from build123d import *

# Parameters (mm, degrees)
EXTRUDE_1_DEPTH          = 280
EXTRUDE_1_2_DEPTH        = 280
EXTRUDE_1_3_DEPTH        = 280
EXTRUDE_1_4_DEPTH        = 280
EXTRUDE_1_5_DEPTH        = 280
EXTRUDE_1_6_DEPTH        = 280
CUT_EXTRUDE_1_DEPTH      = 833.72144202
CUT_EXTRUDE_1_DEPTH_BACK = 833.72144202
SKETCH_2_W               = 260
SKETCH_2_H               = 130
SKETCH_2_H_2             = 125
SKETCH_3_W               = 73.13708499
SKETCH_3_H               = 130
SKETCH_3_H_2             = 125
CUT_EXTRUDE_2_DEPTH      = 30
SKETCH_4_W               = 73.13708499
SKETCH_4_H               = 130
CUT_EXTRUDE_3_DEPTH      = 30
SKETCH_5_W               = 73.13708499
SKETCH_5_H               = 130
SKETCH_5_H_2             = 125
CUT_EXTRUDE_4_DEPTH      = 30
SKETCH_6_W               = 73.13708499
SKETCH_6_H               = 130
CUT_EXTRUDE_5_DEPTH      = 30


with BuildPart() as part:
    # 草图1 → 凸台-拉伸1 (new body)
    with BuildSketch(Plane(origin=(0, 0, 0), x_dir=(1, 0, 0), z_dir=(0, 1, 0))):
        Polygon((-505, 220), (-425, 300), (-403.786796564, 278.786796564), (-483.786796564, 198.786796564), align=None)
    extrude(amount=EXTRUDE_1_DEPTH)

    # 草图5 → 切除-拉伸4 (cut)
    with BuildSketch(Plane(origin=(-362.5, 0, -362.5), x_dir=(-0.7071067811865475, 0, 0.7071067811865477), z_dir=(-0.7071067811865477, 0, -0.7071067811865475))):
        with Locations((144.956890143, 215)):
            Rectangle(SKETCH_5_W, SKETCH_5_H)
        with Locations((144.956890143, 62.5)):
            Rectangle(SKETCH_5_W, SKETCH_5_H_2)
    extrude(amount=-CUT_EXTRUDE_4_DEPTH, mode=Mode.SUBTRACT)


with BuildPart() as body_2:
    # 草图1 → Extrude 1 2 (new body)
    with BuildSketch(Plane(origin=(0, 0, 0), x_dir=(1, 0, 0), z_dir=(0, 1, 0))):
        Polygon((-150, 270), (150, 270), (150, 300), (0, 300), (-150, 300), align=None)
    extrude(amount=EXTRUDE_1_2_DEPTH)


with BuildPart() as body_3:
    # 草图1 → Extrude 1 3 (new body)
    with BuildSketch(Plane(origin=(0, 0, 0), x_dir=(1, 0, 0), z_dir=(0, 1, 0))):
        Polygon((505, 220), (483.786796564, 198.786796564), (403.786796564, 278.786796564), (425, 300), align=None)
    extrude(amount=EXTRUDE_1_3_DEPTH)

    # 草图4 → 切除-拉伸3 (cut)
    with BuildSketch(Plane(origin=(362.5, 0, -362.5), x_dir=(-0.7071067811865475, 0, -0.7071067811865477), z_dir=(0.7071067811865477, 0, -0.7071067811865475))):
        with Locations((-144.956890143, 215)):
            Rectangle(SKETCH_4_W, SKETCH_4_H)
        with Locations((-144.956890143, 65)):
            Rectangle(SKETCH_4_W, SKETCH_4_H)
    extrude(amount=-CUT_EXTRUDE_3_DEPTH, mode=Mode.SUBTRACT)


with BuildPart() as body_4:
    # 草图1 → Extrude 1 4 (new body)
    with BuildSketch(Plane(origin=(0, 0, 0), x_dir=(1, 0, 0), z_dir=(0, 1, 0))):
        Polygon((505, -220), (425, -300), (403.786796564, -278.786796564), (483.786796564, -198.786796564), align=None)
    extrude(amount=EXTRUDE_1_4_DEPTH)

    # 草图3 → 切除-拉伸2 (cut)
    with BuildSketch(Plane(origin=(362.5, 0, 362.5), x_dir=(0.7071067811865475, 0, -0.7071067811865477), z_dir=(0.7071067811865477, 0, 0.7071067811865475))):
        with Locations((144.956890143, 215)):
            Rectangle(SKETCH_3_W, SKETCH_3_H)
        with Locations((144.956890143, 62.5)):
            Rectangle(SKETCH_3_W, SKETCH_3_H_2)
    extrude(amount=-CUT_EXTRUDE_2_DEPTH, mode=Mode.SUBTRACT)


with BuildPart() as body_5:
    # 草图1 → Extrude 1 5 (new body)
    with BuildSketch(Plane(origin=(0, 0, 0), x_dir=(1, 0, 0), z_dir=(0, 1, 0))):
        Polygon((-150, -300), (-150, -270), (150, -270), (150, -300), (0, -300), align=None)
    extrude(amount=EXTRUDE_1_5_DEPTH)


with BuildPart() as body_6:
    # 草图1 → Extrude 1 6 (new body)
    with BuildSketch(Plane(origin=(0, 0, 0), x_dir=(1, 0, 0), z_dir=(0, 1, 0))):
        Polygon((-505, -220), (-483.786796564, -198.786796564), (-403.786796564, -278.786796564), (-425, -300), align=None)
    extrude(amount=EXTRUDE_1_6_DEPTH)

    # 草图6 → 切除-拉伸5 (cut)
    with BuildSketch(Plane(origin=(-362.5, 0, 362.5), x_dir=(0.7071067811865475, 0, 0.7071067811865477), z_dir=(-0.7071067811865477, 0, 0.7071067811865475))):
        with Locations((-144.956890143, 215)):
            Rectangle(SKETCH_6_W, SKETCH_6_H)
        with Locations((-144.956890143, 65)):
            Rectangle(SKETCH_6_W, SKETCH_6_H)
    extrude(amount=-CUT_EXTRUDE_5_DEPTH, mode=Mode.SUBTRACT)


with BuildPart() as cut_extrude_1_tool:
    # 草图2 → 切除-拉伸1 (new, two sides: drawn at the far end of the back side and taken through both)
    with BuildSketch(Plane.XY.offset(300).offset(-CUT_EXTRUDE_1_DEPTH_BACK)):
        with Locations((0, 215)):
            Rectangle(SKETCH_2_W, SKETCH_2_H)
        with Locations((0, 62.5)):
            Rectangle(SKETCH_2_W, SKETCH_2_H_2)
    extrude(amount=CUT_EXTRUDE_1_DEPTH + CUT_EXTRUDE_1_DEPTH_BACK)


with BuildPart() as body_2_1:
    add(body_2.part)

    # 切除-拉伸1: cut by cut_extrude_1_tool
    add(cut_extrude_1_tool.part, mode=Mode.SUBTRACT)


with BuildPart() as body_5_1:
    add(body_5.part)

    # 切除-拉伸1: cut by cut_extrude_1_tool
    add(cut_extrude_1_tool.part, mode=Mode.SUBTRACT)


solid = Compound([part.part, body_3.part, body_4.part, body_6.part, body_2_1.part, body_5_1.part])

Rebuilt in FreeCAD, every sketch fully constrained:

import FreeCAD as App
import Part
import Sketcher

V = App.Vector
Q = App.Units.Quantity


def add_polygon(sketch, points):
    """Adds a closed chain of lines whose ends are joined by coincident constraints."""
    first, n = sketch.GeometryCount, len(points)
    for a, b in zip(points, points[1:] + points[:1]):
        sketch.addGeometry(Part.LineSegment(App.Vector(*a, 0), App.Vector(*b, 0)), False)
    for i in range(n):
        sketch.addConstraint(Sketcher.Constraint("Coincident", first + i, 2, first + (i + 1) % n, 1))

doc = App.newDocument("Part")
body = doc.addObject("PartDesign::Body", "Body")

# Sketch on XZ plane
sketch1 = body.newObject("Sketcher::SketchObject", "Sketch")
sketch1.AttachmentSupport = (doc.getObject("XZ_Plane"), [""])
sketch1.MapMode = "FlatFace"
add_polygon(sketch1, [(-425, -300), (-505, -220), (-484, -199), (-404, -279)])  # lines 0-3
sketch1.addConstraint(Sketcher.Constraint("Perpendicular", 0, 1))
sketch1.addConstraint(Sketcher.Constraint("Perpendicular", 1, 2))
sketch1.addConstraint(Sketcher.Constraint("Perpendicular", 2, 3))
sketch1.addConstraint(Sketcher.Constraint("Angle", 0, Q("135 deg")))
sketch1.addConstraint(Sketcher.Constraint("Distance", 1, Q("30 mm")))
sketch1.addConstraint(Sketcher.Constraint("DistanceX", 0, 2, -1, 1, Q("505 mm")))
sketch1.addConstraint(Sketcher.Constraint("DistanceY", 0, 2, -1, 1, Q("220 mm")))
sketch1.addConstraint(Sketcher.Constraint("DistanceX", 3, 2, -1, 1, Q("425 mm")))
pad1 = body.newObject("PartDesign::Pad", "Pad")
pad1.Profile = sketch1
pad1.Length = 280
pad1.Reversed = True

# Sketch on an angled plane
sketch2 = body.newObject("Sketcher::SketchObject", "Sketch001")
sketch2.Placement = App.Placement(V(-362.5, 0, -362.5), App.Rotation(V(-0.707106781, 0, 0.707106781), V(0, 0.999999999, 0), V(-0.707106781, 0, -0.707106781), "ZXY"))
add_polygon(sketch2, [(108, 280), (108, 150), (182, 150), (182, 280)])  # lines 0-3
add_polygon(sketch2, [(108, 125), (108, 0), (182, 0), (182, 125)])  # lines 4-7
sketch2.addConstraint(Sketcher.Constraint("Vertical", 0))
sketch2.addConstraint(Sketcher.Constraint("Horizontal", 1))
sketch2.addConstraint(Sketcher.Constraint("Vertical", 2))
sketch2.addConstraint(Sketcher.Constraint("Horizontal", 3))
sketch2.addConstraint(Sketcher.Constraint("Vertical", 4))
sketch2.addConstraint(Sketcher.Constraint("Horizontal", 5))
sketch2.addConstraint(Sketcher.Constraint("Vertical", 6))
sketch2.addConstraint(Sketcher.Constraint("Horizontal", 7))
sketch2.addConstraint(Sketcher.Constraint("PointOnObject", 4, 2, -1))
sketch2.addConstraint(Sketcher.Constraint("Vertical", 3, 2, 4, 2))
sketch2.addConstraint(Sketcher.Constraint("Vertical", 2, 2, 5, 2))
sketch2.addConstraint(Sketcher.Constraint("DistanceY", 0, 2, 0, 1, Q("130 mm")))
sketch2.addConstraint(Sketcher.Constraint("DistanceY", 4, 2, 4, 1, Q("125 mm")))
sketch2.addConstraint(Sketcher.Constraint("DistanceY", -1, 1, 0, 2, Q("150 mm")))
sketch2.addConstraint(Sketcher.Constraint("DistanceX", 1, 1, 1, 2, Q("73.137085 mm")))
sketch2.addConstraint(Sketcher.Constraint("DistanceX", -1, 1, 0, 2, Q("108.388348 mm")))
pocket1 = body.newObject("PartDesign::Pocket", "Pocket")
pocket1.Profile = sketch2
pocket1.Length = 30
body2 = doc.addObject("PartDesign::Body", "Body001")

# Sketch on XZ plane
sketch3 = body2.newObject("Sketcher::SketchObject", "Sketch002")
sketch3.AttachmentSupport = (doc.getObject("XZ_Plane001"), [""])
sketch3.MapMode = "FlatFace"
add_polygon(sketch3, [(-150, -270), (150, -270), (150, -300), (-150, -300)])  # lines 0-3
sketch3.addConstraint(Sketcher.Constraint("Horizontal", 0))
sketch3.addConstraint(Sketcher.Constraint("Vertical", 1))
sketch3.addConstraint(Sketcher.Constraint("Horizontal", 2))
sketch3.addConstraint(Sketcher.Constraint("Vertical", 3))
sketch3.addConstraint(Sketcher.Constraint("DistanceX", 0, 1, 0, 2, Q("300 mm")))
sketch3.addConstraint(Sketcher.Constraint("DistanceY", 1, 2, 1, 1, Q("30 mm")))
sketch3.addConstraint(Sketcher.Constraint("DistanceX", -1, 1, 0, 2, Q("150 mm")))
sketch3.addConstraint(Sketcher.Constraint("DistanceY", 0, 2, -1, 1, Q("270 mm")))
pad2 = body2.newObject("PartDesign::Pad", "Pad001")
pad2.Profile = sketch3
pad2.Length = 280
pad2.Reversed = True
body3 = doc.addObject("PartDesign::Body", "Body002")

# Sketch on XZ plane
sketch4 = body3.newObject("Sketcher::SketchObject", "Sketch003")
sketch4.AttachmentSupport = (doc.getObject("XZ_Plane002"), [""])
sketch4.MapMode = "FlatFace"
add_polygon(sketch4, [(484, -199), (505, -220), (425, -300), (404, -279)])  # lines 0-3
sketch4.addConstraint(Sketcher.Constraint("Perpendicular", 0, 1))
sketch4.addConstraint(Sketcher.Constraint("Perpendicular", 1, 2))
sketch4.addConstraint(Sketcher.Constraint("Perpendicular", 2, 3))
sketch4.addConstraint(Sketcher.Constraint("Angle", 0, Q("-45 deg")))
sketch4.addConstraint(Sketcher.Constraint("Distance", 0, Q("30 mm")))
sketch4.addConstraint(Sketcher.Constraint("DistanceX", -1, 1, 0, 2, Q("505 mm")))
sketch4.addConstraint(Sketcher.Constraint("DistanceY", 0, 2, -1, 1, Q("220 mm")))
sketch4.addConstraint(Sketcher.Constraint("DistanceX", -1, 1, 1, 2, Q("425 mm")))
pad3 = body3.newObject("PartDesign::Pad", "Pad002")
pad3.Profile = sketch4
pad3.Length = 280
pad3.Reversed = True

# Sketch on an angled plane
sketch5 = body3.newObject("Sketcher::SketchObject", "Sketch004")
sketch5.Placement = App.Placement(V(362.5, 0, -362.5), App.Rotation(V(-0.707106781, 0, -0.707106781), V(0, 0.999999999, 0), V(0.707106781, 0, -0.707106781), "ZXY"))
add_polygon(sketch5, [(-182, 280), (-182, 150), (-108, 150), (-108, 280)])  # lines 0-3
add_polygon(sketch5, [(-182, 130), (-182, 0), (-108, 0), (-108, 130)])  # lines 4-7
sketch5.addConstraint(Sketcher.Constraint("Vertical", 0))
sketch5.addConstraint(Sketcher.Constraint("Horizontal", 1))
sketch5.addConstraint(Sketcher.Constraint("Vertical", 2))
sketch5.addConstraint(Sketcher.Constraint("Horizontal", 3))
sketch5.addConstraint(Sketcher.Constraint("Vertical", 4))
sketch5.addConstraint(Sketcher.Constraint("Horizontal", 5))
sketch5.addConstraint(Sketcher.Constraint("Vertical", 6))
sketch5.addConstraint(Sketcher.Constraint("Horizontal", 7))
sketch5.addConstraint(Sketcher.Constraint("PointOnObject", 4, 2, -1))
sketch5.addConstraint(Sketcher.Constraint("Vertical", 3, 2, 4, 2))
sketch5.addConstraint(Sketcher.Constraint("Vertical", 2, 2, 5, 2))
sketch5.addConstraint(Sketcher.Constraint("Equal", 2, 4))
sketch5.addConstraint(Sketcher.Constraint("DistanceY", 0, 2, 0, 1, Q("130 mm")))
sketch5.addConstraint(Sketcher.Constraint("DistanceY", -1, 1, 0, 2, Q("150 mm")))
sketch5.addConstraint(Sketcher.Constraint("DistanceX", 1, 1, 1, 2, Q("73.137085 mm")))
sketch5.addConstraint(Sketcher.Constraint("DistanceX", 0, 2, -1, 1, Q("181.525433 mm")))
pocket2 = body3.newObject("PartDesign::Pocket", "Pocket001")
pocket2.Profile = sketch5
pocket2.Length = 30
body4 = doc.addObject("PartDesign::Body", "Body003")

# Sketch on XZ plane
sketch6 = body4.newObject("Sketcher::SketchObject", "Sketch005")
sketch6.AttachmentSupport = (doc.getObject("XZ_Plane003"), [""])
sketch6.MapMode = "FlatFace"
add_polygon(sketch6, [(425, 300), (505, 220), (484, 199), (404, 279)])  # lines 0-3
sketch6.addConstraint(Sketcher.Constraint("Perpendicular", 0, 1))
sketch6.addConstraint(Sketcher.Constraint("Perpendicular", 1, 2))
sketch6.addConstraint(Sketcher.Constraint("Perpendicular", 2, 3))
sketch6.addConstraint(Sketcher.Constraint("Angle", 0, Q("-45 deg")))
sketch6.addConstraint(Sketcher.Constraint("Distance", 1, Q("30 mm")))
sketch6.addConstraint(Sketcher.Constraint("DistanceX", -1, 1, 0, 2, Q("505 mm")))
sketch6.addConstraint(Sketcher.Constraint("DistanceY", -1, 1, 0, 2, Q("220 mm")))
sketch6.addConstraint(Sketcher.Constraint("DistanceX", -1, 1, 3, 2, Q("425 mm")))
pad4 = body4.newObject("PartDesign::Pad", "Pad003")
pad4.Profile = sketch6
pad4.Length = 280
pad4.Reversed = True

# Sketch on an angled plane
sketch7 = body4.newObject("Sketcher::SketchObject", "Sketch006")
sketch7.Placement = App.Placement(V(362.5, 0, 362.5), App.Rotation(V(0.707106781, 0, -0.707106781), V(0, 0.999999999, 0), V(0.707106781, 0, 0.707106781), "ZXY"))
add_polygon(sketch7, [(108, 280), (108, 150), (182, 150), (182, 280)])  # lines 0-3
add_polygon(sketch7, [(108, 125), (108, 0), (182, 0), (182, 125)])  # lines 4-7
sketch7.addConstraint(Sketcher.Constraint("Vertical", 0))
sketch7.addConstraint(Sketcher.Constraint("Horizontal", 1))
sketch7.addConstraint(Sketcher.Constraint("Vertical", 2))
sketch7.addConstraint(Sketcher.Constraint("Horizontal", 3))
sketch7.addConstraint(Sketcher.Constraint("Vertical", 4))
sketch7.addConstraint(Sketcher.Constraint("Horizontal", 5))
sketch7.addConstraint(Sketcher.Constraint("Vertical", 6))
sketch7.addConstraint(Sketcher.Constraint("Horizontal", 7))
sketch7.addConstraint(Sketcher.Constraint("PointOnObject", 4, 2, -1))
sketch7.addConstraint(Sketcher.Constraint("Vertical", 3, 2, 4, 2))
sketch7.addConstraint(Sketcher.Constraint("Vertical", 2, 2, 5, 2))
sketch7.addConstraint(Sketcher.Constraint("DistanceY", 0, 2, 0, 1, Q("130 mm")))
sketch7.addConstraint(Sketcher.Constraint("DistanceY", 4, 2, 4, 1, Q("125 mm")))
sketch7.addConstraint(Sketcher.Constraint("DistanceY", -1, 1, 0, 2, Q("150 mm")))
sketch7.addConstraint(Sketcher.Constraint("DistanceX", 1, 1, 1, 2, Q("73.137085 mm")))
sketch7.addConstraint(Sketcher.Constraint("DistanceX", -1, 1, 0, 2, Q("108.388348 mm")))
pocket3 = body4.newObject("PartDesign::Pocket", "Pocket002")
pocket3.Profile = sketch7
pocket3.Length = 30
body5 = doc.addObject("PartDesign::Body", "Body004")

# Sketch on XZ plane
sketch8 = body5.newObject("Sketcher::SketchObject", "Sketch007")
sketch8.AttachmentSupport = (doc.getObject("XZ_Plane004"), [""])
sketch8.MapMode = "FlatFace"
add_polygon(sketch8, [(-150, 270), (-150, 300), (150, 300), (150, 270)])  # lines 0-3
sketch8.addConstraint(Sketcher.Constraint("Vertical", 0))
sketch8.addConstraint(Sketcher.Constraint("Horizontal", 1))
sketch8.addConstraint(Sketcher.Constraint("Vertical", 2))
sketch8.addConstraint(Sketcher.Constraint("Horizontal", 3))
sketch8.addConstraint(Sketcher.Constraint("DistanceX", 1, 1, 1, 2, Q("300 mm")))
sketch8.addConstraint(Sketcher.Constraint("DistanceY", 0, 1, 0, 2, Q("30 mm")))
sketch8.addConstraint(Sketcher.Constraint("DistanceX", 0, 2, -1, 1, Q("150 mm")))
sketch8.addConstraint(Sketcher.Constraint("DistanceY", -1, 1, 0, 2, Q("300 mm")))
pad5 = body5.newObject("PartDesign::Pad", "Pad004")
pad5.Profile = sketch8
pad5.Length = 280
pad5.Reversed = True
body6 = doc.addObject("PartDesign::Body", "Body005")

# Sketch on XZ plane
sketch9 = body6.newObject("Sketcher::SketchObject", "Sketch008")
sketch9.AttachmentSupport = (doc.getObject("XZ_Plane005"), [""])
sketch9.MapMode = "FlatFace"
add_polygon(sketch9, [(-484, 199), (-505, 220), (-425, 300), (-404, 279)])  # lines 0-3
sketch9.addConstraint(Sketcher.Constraint("Perpendicular", 0, 1))
sketch9.addConstraint(Sketcher.Constraint("Perpendicular", 1, 2))
sketch9.addConstraint(Sketcher.Constraint("Perpendicular", 2, 3))
sketch9.addConstraint(Sketcher.Constraint("Angle", 0, Q("135 deg")))
sketch9.addConstraint(Sketcher.Constraint("Distance", 0, Q("30 mm")))
sketch9.addConstraint(Sketcher.Constraint("DistanceX", 0, 2, -1, 1, Q("505 mm")))
sketch9.addConstraint(Sketcher.Constraint("DistanceY", -1, 1, 0, 2, Q("220 mm")))
sketch9.addConstraint(Sketcher.Constraint("DistanceX", 1, 2, -1, 1, Q("425 mm")))
pad6 = body6.newObject("PartDesign::Pad", "Pad005")
pad6.Profile = sketch9
pad6.Length = 280
pad6.Reversed = True

# Sketch on an angled plane
sketch10 = body6.newObject("Sketcher::SketchObject", "Sketch009")
sketch10.Placement = App.Placement(V(-362.5, 0, 362.5), App.Rotation(V(0.707106781, 0, 0.707106781), V(0, 0.999999999, 0), V(-0.707106781, 0, 0.707106781), "ZXY"))
add_polygon(sketch10, [(-182, 280), (-182, 150), (-108, 150), (-108, 280)])  # lines 0-3
add_polygon(sketch10, [(-182, 130), (-182, 0), (-108, 0), (-108, 130)])  # lines 4-7
sketch10.addConstraint(Sketcher.Constraint("Vertical", 0))
sketch10.addConstraint(Sketcher.Constraint("Horizontal", 1))
sketch10.addConstraint(Sketcher.Constraint("Vertical", 2))
sketch10.addConstraint(Sketcher.Constraint("Horizontal", 3))
sketch10.addConstraint(Sketcher.Constraint("Vertical", 4))
sketch10.addConstraint(Sketcher.Constraint("Horizontal", 5))
sketch10.addConstraint(Sketcher.Constraint("Vertical", 6))
sketch10.addConstraint(Sketcher.Constraint("Horizontal", 7))
sketch10.addConstraint(Sketcher.Constraint("PointOnObject", 4, 2, -1))
sketch10.addConstraint(Sketcher.Constraint("Vertical", 3, 2, 4, 2))
sketch10.addConstraint(Sketcher.Constraint("Vertical", 2, 2, 5, 2))
sketch10.addConstraint(Sketcher.Constraint("Equal", 2, 4))
sketch10.addConstraint(Sketcher.Constraint("DistanceY", 0, 2, 0, 1, Q("130 mm")))
sketch10.addConstraint(Sketcher.Constraint("DistanceY", -1, 1, 0, 2, Q("150 mm")))
sketch10.addConstraint(Sketcher.Constraint("DistanceX", 1, 1, 1, 2, Q("73.137085 mm")))
sketch10.addConstraint(Sketcher.Constraint("DistanceX", 0, 2, -1, 1, Q("181.525433 mm")))
pocket4 = body6.newObject("PartDesign::Pocket", "Pocket003")
pocket4.Profile = sketch10
pocket4.Length = 30
body7 = doc.addObject("PartDesign::Body", "Body006")
body7.AllowCompound = True

# Sketch on XY plane
sketch11 = body7.newObject("Sketcher::SketchObject", "Sketch010")
sketch11.AttachmentSupport = (doc.getObject("XY_Plane006"), [""])
sketch11.MapMode = "FlatFace"
sketch11.AttachmentOffset = App.Placement(V(0, 0, 300), App.Rotation())
add_polygon(sketch11, [(-130, 280), (-130, 150), (130, 150), (130, 280)])  # lines 0-3
add_polygon(sketch11, [(-130, 125), (-130, 0), (130, 0), (130, 125)])  # lines 4-7
sketch11.addConstraint(Sketcher.Constraint("Vertical", 0))
sketch11.addConstraint(Sketcher.Constraint("Horizontal", 1))
sketch11.addConstraint(Sketcher.Constraint("Vertical", 2))
sketch11.addConstraint(Sketcher.Constraint("Horizontal", 3))
sketch11.addConstraint(Sketcher.Constraint("Vertical", 4))
sketch11.addConstraint(Sketcher.Constraint("Horizontal", 5))
sketch11.addConstraint(Sketcher.Constraint("Vertical", 6))
sketch11.addConstraint(Sketcher.Constraint("Horizontal", 7))
sketch11.addConstraint(Sketcher.Constraint("Symmetric", 4, 2, 5, 2, -1, 1))
sketch11.addConstraint(Sketcher.Constraint("Vertical", 3, 2, 4, 2))
sketch11.addConstraint(Sketcher.Constraint("Vertical", 2, 2, 5, 2))
sketch11.addConstraint(Sketcher.Constraint("DistanceX", 1, 1, 1, 2, Q("260 mm")))
sketch11.addConstraint(Sketcher.Constraint("DistanceY", 0, 2, 0, 1, Q("130 mm")))
sketch11.addConstraint(Sketcher.Constraint("DistanceY", 4, 2, 4, 1, Q("125 mm")))
sketch11.addConstraint(Sketcher.Constraint("DistanceY", -1, 1, 0, 2, Q("150 mm")))
pad7 = body7.newObject("PartDesign::Pad", "Pad006")
pad7.Profile = sketch11
pad7.Type = "TwoLengths"
pad7.Length = 833.721442
pad7.Length2 = 833.721442
doc.recompute()

body8 = doc.addObject("PartDesign::Body", "Body007")
body8.BaseFeature = body7
boolean = body2.newObject("PartDesign::Boolean", "Boolean")
boolean.Type = "Cut"
boolean.addObjects([body8])
doc.recompute()

boolean2 = body5.newObject("PartDesign::Boolean", "Boolean001")
boolean2.Type = "Cut"
boolean2.addObjects([body7])

doc.recompute()
